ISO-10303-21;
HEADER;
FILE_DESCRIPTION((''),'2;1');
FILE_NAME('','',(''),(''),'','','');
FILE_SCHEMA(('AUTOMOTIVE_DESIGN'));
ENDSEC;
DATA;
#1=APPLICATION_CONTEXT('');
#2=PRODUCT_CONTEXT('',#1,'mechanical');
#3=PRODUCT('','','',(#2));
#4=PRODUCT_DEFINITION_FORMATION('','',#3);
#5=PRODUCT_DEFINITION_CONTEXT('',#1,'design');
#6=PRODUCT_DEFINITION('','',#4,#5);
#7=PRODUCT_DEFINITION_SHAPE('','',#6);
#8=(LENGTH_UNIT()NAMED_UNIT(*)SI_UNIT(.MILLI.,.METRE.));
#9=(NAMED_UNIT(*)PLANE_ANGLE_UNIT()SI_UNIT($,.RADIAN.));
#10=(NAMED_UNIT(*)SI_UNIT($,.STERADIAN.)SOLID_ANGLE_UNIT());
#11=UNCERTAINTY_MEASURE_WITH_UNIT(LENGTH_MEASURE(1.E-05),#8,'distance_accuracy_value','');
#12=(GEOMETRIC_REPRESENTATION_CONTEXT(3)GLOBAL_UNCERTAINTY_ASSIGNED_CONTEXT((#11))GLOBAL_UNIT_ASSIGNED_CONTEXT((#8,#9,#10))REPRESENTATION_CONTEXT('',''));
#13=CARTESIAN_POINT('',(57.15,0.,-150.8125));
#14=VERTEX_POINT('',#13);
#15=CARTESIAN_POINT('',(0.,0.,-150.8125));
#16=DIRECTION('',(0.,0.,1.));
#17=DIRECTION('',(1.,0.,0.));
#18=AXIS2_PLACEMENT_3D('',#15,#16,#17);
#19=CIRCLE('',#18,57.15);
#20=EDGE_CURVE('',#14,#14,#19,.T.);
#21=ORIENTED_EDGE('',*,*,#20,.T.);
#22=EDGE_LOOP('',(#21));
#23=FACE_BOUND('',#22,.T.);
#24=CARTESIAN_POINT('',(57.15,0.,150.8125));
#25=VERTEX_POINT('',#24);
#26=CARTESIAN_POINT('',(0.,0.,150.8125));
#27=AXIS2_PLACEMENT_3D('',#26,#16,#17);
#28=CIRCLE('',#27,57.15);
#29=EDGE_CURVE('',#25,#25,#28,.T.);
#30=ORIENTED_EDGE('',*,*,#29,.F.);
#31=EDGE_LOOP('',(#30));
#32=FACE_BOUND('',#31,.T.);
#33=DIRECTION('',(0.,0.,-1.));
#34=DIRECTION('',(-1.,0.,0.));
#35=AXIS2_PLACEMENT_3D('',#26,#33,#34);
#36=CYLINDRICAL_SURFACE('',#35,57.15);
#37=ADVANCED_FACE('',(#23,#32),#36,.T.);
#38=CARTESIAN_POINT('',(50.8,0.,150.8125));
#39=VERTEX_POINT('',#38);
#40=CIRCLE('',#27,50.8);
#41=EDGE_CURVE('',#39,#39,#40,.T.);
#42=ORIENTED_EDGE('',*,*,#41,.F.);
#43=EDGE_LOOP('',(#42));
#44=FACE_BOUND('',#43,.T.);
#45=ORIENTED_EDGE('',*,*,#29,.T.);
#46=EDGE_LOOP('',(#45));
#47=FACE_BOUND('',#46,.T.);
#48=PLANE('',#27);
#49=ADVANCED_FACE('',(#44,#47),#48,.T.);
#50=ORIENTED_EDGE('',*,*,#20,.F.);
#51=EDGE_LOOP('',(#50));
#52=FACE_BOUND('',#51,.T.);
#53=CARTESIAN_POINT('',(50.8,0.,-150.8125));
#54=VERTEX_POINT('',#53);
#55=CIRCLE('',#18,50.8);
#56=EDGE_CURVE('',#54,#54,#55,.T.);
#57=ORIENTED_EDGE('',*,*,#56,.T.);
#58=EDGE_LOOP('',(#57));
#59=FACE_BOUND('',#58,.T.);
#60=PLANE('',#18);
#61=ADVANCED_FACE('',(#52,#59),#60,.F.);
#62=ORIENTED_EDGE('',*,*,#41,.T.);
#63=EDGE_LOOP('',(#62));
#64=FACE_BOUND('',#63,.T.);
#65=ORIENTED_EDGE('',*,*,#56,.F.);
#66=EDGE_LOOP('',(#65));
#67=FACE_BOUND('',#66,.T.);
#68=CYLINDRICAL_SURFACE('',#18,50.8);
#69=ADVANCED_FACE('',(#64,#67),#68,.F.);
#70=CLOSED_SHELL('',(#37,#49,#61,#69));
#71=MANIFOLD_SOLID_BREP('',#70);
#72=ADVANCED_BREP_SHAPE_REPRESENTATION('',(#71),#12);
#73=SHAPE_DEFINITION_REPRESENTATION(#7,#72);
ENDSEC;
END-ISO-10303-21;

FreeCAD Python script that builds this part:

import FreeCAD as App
import Part
import Sketcher
from FreeCAD import Vector
Q = App.Units.Quantity

doc = App.newDocument("Part")
body = doc.addObject("PartDesign::Body", "Body")

# Sketch on XY plane
sketch1 = body.newObject("Sketcher::SketchObject", "Sketch")
sketch1.AttachmentSupport = (doc.getObject("XY_Plane"), [""])
sketch1.MapMode = "FlatFace"
sketch1.addGeometry(Part.Circle(Vector(0, 0, 0), Vector(0, 0, 1), 57.15), False)
sketch1.addConstraint([
    Sketcher.Constraint("Coincident", 0, 3, -1, 1),
    Sketcher.Constraint("Diameter", 0, Q("4.5 in")),
])
pad1 = body.newObject("PartDesign::Pad", "Pad")
pad1.Profile = sketch1
pad1.Length = Q("11.875 in")
pad1.Midplane = True

# Sketch on XY plane
sketch2 = body.newObject("Sketcher::SketchObject", "Sketch001")
sketch2.AttachmentSupport = (doc.getObject("XY_Plane"), [""])
sketch2.MapMode = "FlatFace"
sketch2.AttachmentOffset = App.Placement(Vector(0, 0, 5.9375 * 25.4), App.Rotation())
sketch2.addGeometry(Part.Circle(Vector(0, 0, 0), Vector(0, 0, 1), 50.8), False)
sketch2.addConstraint([
    Sketcher.Constraint("Coincident", 0, 3, -1, 1),
    Sketcher.Constraint("Diameter", 0, Q("4 in")),
])
pocket1 = body.newObject("PartDesign::Pocket", "Pocket")
pocket1.Profile = sketch2
pocket1.Type = "ThroughAll"

doc.recompute()
